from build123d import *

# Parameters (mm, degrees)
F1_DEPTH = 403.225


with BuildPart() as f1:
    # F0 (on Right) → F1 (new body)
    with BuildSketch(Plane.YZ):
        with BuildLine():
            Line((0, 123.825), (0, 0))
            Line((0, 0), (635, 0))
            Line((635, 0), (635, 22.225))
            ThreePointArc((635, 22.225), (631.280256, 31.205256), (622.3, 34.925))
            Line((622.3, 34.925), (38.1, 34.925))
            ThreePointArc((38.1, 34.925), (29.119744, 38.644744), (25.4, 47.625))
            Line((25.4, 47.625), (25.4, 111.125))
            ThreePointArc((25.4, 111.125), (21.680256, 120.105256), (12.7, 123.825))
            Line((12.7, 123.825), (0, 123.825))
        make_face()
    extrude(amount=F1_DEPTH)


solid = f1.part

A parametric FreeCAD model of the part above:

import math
import FreeCAD as App
import Part
import Sketcher
Q = App.Units.Quantity

doc = App.newDocument("Part")
body = doc.addObject("PartDesign::Body", "Body")

sketch1 = body.newObject("Sketcher::SketchObject", "Sketch")
sketch1.AttachmentSupport = (doc.getObject("YZ_Plane"), [""])
sketch1.MapMode = "FlatFace"
sketch1.addGeometry([
    Part.LineSegment(App.Vector(0, 124, 0), App.Vector(0, 0, 0)),
    Part.LineSegment(App.Vector(0, 0, 0), App.Vector(635, 0, 0)),
    Part.LineSegment(App.Vector(635, 0, 0), App.Vector(635, 22, 0)),
    Part.ArcOfCircle(Part.Circle(App.Vector(622, 22, 0), App.Vector(0, 0, 1), 13), math.radians(0), math.radians(90)),
    Part.LineSegment(App.Vector(622, 35, 0), App.Vector(38, 35, 0)),
    Part.ArcOfCircle(Part.Circle(App.Vector(38, 48, 0), App.Vector(0, 0, 1), 13), math.radians(-180), math.radians(-90)),
    Part.LineSegment(App.Vector(25, 48, 0), App.Vector(25, 111, 0)),
    Part.ArcOfCircle(Part.Circle(App.Vector(13, 111, 0), App.Vector(0, 0, 1), 13), math.radians(0), math.radians(90)),
    Part.LineSegment(App.Vector(13, 124, 0), App.Vector(0, 124, 0)),
], False)
sketch1.addConstraint([
    Sketcher.Constraint("Coincident", 0, 2, 1, 1),
    Sketcher.Constraint("Coincident", 1, 2, 2, 1),
    Sketcher.Constraint("Tangent", 2, 2, 3, 1),
    Sketcher.Constraint("Tangent", 3, 2, 4, 1),
    Sketcher.Constraint("Tangent", 4, 2, 5, 2),
    Sketcher.Constraint("Tangent", 5, 1, 6, 1),
    Sketcher.Constraint("Tangent", 6, 2, 7, 1),
    Sketcher.Constraint("Tangent", 7, 2, 8, 1),
    Sketcher.Constraint("Coincident", 8, 2, 0, 1),
    Sketcher.Constraint("Vertical", 0),
    Sketcher.Constraint("Horizontal", 1),
    Sketcher.Constraint("Vertical", 2),
    Sketcher.Constraint("Horizontal", 4),
    Sketcher.Constraint("Vertical", 6),
    Sketcher.Constraint("Horizontal", 8),
    Sketcher.Constraint("Coincident", 0, 2, -1, 1),
    Sketcher.Constraint("Equal", 3, 5),
    Sketcher.Constraint("Equal", 5, 7),
    Sketcher.Constraint("Radius", 3, Q("0.5 in")),
    Sketcher.Constraint("DistanceX", 1, 1, 1, 2, Q("25 in")),
    Sketcher.Constraint("DistanceX", 4, 2, 4, 1, Q("23 in")),
    Sketcher.Constraint("DistanceY", 6, 1, 6, 2, Q("2.5 in")),
    Sketcher.Constraint("DistanceY", 0, 2, 0, 1, Q("4.875 in")),
])
pad1 = body.newObject("PartDesign::Pad", "Pad")
pad1.Profile = sketch1
pad1.Length = Q("15.875 in")

doc.recompute()
